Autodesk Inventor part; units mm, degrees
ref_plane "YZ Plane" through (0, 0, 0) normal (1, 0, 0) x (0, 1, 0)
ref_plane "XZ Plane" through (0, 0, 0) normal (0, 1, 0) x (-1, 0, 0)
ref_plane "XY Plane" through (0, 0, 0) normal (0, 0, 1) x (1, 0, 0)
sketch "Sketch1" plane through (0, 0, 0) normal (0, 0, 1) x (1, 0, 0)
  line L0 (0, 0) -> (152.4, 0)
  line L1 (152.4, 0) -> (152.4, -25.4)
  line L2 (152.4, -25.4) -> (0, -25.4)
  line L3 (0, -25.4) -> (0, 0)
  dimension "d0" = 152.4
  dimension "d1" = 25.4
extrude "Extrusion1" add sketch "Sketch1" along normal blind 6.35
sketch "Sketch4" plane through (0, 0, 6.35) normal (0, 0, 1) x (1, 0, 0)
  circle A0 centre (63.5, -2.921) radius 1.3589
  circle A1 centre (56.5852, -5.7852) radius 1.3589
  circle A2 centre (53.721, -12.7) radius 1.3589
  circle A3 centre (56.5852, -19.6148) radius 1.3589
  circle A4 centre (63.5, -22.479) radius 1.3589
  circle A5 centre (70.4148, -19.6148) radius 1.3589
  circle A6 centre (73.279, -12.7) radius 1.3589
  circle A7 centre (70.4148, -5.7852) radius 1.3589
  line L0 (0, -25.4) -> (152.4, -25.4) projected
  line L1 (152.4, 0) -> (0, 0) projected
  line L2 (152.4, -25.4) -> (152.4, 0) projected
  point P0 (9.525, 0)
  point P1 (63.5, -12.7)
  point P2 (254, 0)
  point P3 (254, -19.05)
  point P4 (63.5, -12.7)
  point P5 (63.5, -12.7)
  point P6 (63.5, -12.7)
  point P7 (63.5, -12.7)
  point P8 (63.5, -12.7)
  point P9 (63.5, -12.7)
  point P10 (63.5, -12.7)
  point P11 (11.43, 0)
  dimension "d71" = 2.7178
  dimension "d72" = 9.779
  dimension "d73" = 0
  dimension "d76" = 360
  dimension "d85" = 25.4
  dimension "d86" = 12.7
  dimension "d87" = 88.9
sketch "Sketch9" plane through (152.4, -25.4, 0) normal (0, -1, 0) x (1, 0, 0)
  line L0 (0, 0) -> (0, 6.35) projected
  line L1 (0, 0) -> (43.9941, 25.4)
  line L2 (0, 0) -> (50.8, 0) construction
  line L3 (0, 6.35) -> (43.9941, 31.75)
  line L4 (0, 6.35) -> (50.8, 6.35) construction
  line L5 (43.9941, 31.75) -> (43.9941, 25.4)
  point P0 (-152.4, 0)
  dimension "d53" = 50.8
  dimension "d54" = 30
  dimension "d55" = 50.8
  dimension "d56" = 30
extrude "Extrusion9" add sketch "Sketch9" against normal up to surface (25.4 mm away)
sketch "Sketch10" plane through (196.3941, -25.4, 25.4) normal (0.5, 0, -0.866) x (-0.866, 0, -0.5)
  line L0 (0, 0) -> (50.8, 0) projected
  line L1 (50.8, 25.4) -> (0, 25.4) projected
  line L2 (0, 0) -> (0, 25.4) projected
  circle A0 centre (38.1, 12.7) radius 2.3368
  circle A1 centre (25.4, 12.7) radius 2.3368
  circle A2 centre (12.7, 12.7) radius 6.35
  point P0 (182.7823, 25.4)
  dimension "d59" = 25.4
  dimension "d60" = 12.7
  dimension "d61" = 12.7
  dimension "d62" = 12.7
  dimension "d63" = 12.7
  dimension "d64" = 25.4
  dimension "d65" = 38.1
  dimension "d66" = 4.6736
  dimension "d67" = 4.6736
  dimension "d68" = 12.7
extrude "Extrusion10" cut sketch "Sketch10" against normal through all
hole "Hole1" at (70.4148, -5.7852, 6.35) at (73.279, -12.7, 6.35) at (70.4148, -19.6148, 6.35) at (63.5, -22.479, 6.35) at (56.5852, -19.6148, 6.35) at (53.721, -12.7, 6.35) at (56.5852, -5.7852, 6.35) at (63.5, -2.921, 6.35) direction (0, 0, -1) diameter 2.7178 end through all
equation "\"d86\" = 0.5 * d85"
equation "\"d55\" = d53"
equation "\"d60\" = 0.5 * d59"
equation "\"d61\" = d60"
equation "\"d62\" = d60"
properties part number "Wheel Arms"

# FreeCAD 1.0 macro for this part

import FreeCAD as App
import Part
import Sketcher
Q = App.Units.Quantity

doc = App.newDocument("Part")
body = doc.addObject("PartDesign::Body", "Body")

sketch1 = body.newObject("Sketcher::SketchObject", "Sketch")
sketch1.AttachmentSupport = (doc.getObject("XY_Plane"), [""])
sketch1.MapMode = "FlatFace"
sketch1.addGeometry([
    Part.LineSegment(App.Vector(152, 0, 0), App.Vector(0, 0, 0)),
    Part.LineSegment(App.Vector(0, 0, 0), App.Vector(0, -25, 0)),
    Part.LineSegment(App.Vector(0, -25, 0), App.Vector(152, -25, 0)),
    Part.LineSegment(App.Vector(152, -25, 0), App.Vector(152, 0, 0)),
], False)
sketch1.addConstraint([
    Sketcher.Constraint("Coincident", 0, 2, 1, 1),
    Sketcher.Constraint("Coincident", 1, 2, 2, 1),
    Sketcher.Constraint("Coincident", 2, 2, 3, 1),
    Sketcher.Constraint("Coincident", 3, 2, 0, 1),
    Sketcher.Constraint("Horizontal", 0),
    Sketcher.Constraint("Vertical", 1),
    Sketcher.Constraint("Horizontal", 2),
    Sketcher.Constraint("Vertical", 3),
    Sketcher.Constraint("Coincident", 0, 2, -1, 1),
    Sketcher.Constraint("DistanceX", 0, 2, 0, 1, Q("6 in")),
    Sketcher.Constraint("DistanceY", 1, 2, 1, 1, Q("1 in")),
])
pad1 = body.newObject("PartDesign::Pad", "Pad")
pad1.Profile = sketch1
pad1.Length = Q("0.25 in")

sketch2 = body.newObject("Sketcher::SketchObject", "Sketch001")
sketch2.AttachmentSupport = (doc.getObject("XZ_Plane"), [""])
sketch2.MapMode = "FlatFace"
sketch2.AttachmentOffset = App.Placement(App.Vector(0, 0, 1 * 25.4), App.Rotation())
sketch2.addGeometry([
    Part.LineSegment(App.Vector(152, 6, 0), App.Vector(152, 0, 0)),
    Part.LineSegment(App.Vector(152, 0, 0), App.Vector(196, 25, 0)),
    Part.LineSegment(App.Vector(196, 25, 0), App.Vector(196, 32, 0)),
    Part.LineSegment(App.Vector(196, 32, 0), App.Vector(152, 6, 0)),
], False)
sketch2.addConstraint([
    Sketcher.Constraint("Coincident", 0, 2, 1, 1),
    Sketcher.Constraint("Coincident", 1, 2, 2, 1),
    Sketcher.Constraint("Coincident", 2, 2, 3, 1),
    Sketcher.Constraint("Coincident", 3, 2, 0, 1),
    Sketcher.Constraint("Vertical", 0),
    Sketcher.Constraint("Vertical", 2),
    Sketcher.Constraint("PointOnObject", 0, 2, -1),
    Sketcher.Constraint("Parallel", 1, 3),
    Sketcher.Constraint("Distance", 1, Q("2 in")),
    Sketcher.Constraint("Angle", 1, Q("30 deg")),
    Sketcher.Constraint("DistanceX", -1, 1, 0, 2, Q("6 in")),
    Sketcher.Constraint("DistanceY", 0, 2, 0, 1, Q("0.25 in")),
])
pad2 = body.newObject("PartDesign::Pad", "Pad001")
pad2.Profile = sketch2
pad2.Length = Q("1 in")
pad2.Reversed = True

sketch3 = body.newObject("Sketcher::SketchObject", "Sketch002")
sketch3.Placement = App.Placement(App.Vector(196.3941, -25.4, 25.4), App.Rotation(App.Vector(-0.866025404, 0, -0.5), App.Vector(0, 1, 0), App.Vector(0.5, 0, -0.866025404), "ZXY"))
sketch3.addGeometry([
    Part.Circle(App.Vector(38.1, 12.7, 0), App.Vector(0, 0, 1), 2.3),
    Part.Circle(App.Vector(25.4, 12.7, 0), App.Vector(0, 0, 1), 2.3),
    Part.Circle(App.Vector(12.7, 12.7, 0), App.Vector(0, 0, 1), 6.3),
], False)
sketch3.addConstraint([
    Sketcher.Constraint("Equal", 0, 1),
    Sketcher.Constraint("Horizontal", 0, 3, 1, 3),
    Sketcher.Constraint("Horizontal", 1, 3, 2, 3),
    Sketcher.Constraint("Diameter", 2, Q("0.5 in")),
    Sketcher.Constraint("Diameter", 0, Q("0.184 in")),
    Sketcher.Constraint("DistanceX", -1, 1, 1, 3, Q("1 in")),
    Sketcher.Constraint("DistanceX", 2, 3, 0, 3, Q("1 in")),
    Sketcher.Constraint("DistanceX", -1, 1, 0, 3, Q("1.5 in")),
    Sketcher.Constraint("DistanceY", -1, 1, 0, 3, Q("0.5 in")),
])
pocket1 = body.newObject("PartDesign::Pocket", "Pocket")
pocket1.Profile = sketch3
pocket1.Type = "ThroughAll"

sketch4 = body.newObject("Sketcher::SketchObject", "Sketch003")
sketch4.AttachmentSupport = (doc.getObject("XY_Plane"), [""])
sketch4.MapMode = "FlatFace"
sketch4.AttachmentOffset = App.Placement(App.Vector(0, 0, 0.25 * 25.4), App.Rotation())
sketch4.addGeometry([
    Part.Circle(App.Vector(70.4, -5.8, 0), App.Vector(0, 0, 1), 1.4),
    Part.Circle(App.Vector(73.3, -12.7, 0), App.Vector(0, 0, 1), 1.4),
    Part.Circle(App.Vector(70.4, -19.6, 0), App.Vector(0, 0, 1), 1.4),
    Part.Circle(App.Vector(63.5, -22.5, 0), App.Vector(0, 0, 1), 1.4),
    Part.Circle(App.Vector(56.6, -19.6, 0), App.Vector(0, 0, 1), 1.4),
    Part.Circle(App.Vector(53.7, -12.7, 0), App.Vector(0, 0, 1), 1.4),
    Part.Circle(App.Vector(56.6, -5.8, 0), App.Vector(0, 0, 1), 1.4),
    Part.Circle(App.Vector(63.5, -2.9, 0), App.Vector(0, 0, 1), 1.4),
], False)
sketch4.addConstraint([
    Sketcher.Constraint("Equal", 0, 1),
    Sketcher.Constraint("Equal", 1, 2),
    Sketcher.Constraint("Equal", 2, 3),
    Sketcher.Constraint("Equal", 3, 4),
    Sketcher.Constraint("Equal", 4, 5),
    Sketcher.Constraint("Equal", 5, 6),
    Sketcher.Constraint("Equal", 6, 7),
    Sketcher.Constraint("Horizontal", 2, 3, 4, 3),
    Sketcher.Constraint("Horizontal", 1, 3, 5, 3),
    Sketcher.Constraint("Horizontal", 0, 3, 6, 3),
    Sketcher.Constraint("Vertical", 0, 3, 2, 3),
    Sketcher.Constraint("Vertical", 4, 3, 6, 3),
    Sketcher.Constraint("Vertical", 3, 3, 7, 3),
    Sketcher.Constraint("Diameter", 0, Q("0.107 in")),
    Sketcher.Constraint("DistanceY", 1, 3, -1, 1, Q("0.5 in")),
    Sketcher.Constraint("DistanceX", -1, 1, 3, 3, Q("2.5 in")),
    Sketcher.Constraint("DistanceX", 5, 3, 1, 3, Q("0.77 in")),
    Sketcher.Constraint("DistanceX", -1, 1, 1, 3, Q("2.885 in")),
    Sketcher.Constraint("DistanceY", 3, 3, -1, 1, Q("0.885 in")),
    Sketcher.Constraint("DistanceY", 7, 3, -1, 1, Q("0.115 in")),
    Sketcher.Constraint("DistanceX", -1, 1, 0, 3, 70.4148),
    Sketcher.Constraint("DistanceY", 0, 3, -1, 1, 5.7852),
    Sketcher.Constraint("DistanceY", 2, 3, -1, 1, 19.6148),
    Sketcher.Constraint("DistanceX", -1, 1, 4, 3, 56.5852),
])
doc.recompute()
hole = body.newObject("PartDesign::Hole", "Hole")
hole.Profile = sketch4
hole.ThreadType = "None"
hole.Diameter = Q("0.107 in")
hole.DepthType = "ThroughAll"

doc.recompute()
